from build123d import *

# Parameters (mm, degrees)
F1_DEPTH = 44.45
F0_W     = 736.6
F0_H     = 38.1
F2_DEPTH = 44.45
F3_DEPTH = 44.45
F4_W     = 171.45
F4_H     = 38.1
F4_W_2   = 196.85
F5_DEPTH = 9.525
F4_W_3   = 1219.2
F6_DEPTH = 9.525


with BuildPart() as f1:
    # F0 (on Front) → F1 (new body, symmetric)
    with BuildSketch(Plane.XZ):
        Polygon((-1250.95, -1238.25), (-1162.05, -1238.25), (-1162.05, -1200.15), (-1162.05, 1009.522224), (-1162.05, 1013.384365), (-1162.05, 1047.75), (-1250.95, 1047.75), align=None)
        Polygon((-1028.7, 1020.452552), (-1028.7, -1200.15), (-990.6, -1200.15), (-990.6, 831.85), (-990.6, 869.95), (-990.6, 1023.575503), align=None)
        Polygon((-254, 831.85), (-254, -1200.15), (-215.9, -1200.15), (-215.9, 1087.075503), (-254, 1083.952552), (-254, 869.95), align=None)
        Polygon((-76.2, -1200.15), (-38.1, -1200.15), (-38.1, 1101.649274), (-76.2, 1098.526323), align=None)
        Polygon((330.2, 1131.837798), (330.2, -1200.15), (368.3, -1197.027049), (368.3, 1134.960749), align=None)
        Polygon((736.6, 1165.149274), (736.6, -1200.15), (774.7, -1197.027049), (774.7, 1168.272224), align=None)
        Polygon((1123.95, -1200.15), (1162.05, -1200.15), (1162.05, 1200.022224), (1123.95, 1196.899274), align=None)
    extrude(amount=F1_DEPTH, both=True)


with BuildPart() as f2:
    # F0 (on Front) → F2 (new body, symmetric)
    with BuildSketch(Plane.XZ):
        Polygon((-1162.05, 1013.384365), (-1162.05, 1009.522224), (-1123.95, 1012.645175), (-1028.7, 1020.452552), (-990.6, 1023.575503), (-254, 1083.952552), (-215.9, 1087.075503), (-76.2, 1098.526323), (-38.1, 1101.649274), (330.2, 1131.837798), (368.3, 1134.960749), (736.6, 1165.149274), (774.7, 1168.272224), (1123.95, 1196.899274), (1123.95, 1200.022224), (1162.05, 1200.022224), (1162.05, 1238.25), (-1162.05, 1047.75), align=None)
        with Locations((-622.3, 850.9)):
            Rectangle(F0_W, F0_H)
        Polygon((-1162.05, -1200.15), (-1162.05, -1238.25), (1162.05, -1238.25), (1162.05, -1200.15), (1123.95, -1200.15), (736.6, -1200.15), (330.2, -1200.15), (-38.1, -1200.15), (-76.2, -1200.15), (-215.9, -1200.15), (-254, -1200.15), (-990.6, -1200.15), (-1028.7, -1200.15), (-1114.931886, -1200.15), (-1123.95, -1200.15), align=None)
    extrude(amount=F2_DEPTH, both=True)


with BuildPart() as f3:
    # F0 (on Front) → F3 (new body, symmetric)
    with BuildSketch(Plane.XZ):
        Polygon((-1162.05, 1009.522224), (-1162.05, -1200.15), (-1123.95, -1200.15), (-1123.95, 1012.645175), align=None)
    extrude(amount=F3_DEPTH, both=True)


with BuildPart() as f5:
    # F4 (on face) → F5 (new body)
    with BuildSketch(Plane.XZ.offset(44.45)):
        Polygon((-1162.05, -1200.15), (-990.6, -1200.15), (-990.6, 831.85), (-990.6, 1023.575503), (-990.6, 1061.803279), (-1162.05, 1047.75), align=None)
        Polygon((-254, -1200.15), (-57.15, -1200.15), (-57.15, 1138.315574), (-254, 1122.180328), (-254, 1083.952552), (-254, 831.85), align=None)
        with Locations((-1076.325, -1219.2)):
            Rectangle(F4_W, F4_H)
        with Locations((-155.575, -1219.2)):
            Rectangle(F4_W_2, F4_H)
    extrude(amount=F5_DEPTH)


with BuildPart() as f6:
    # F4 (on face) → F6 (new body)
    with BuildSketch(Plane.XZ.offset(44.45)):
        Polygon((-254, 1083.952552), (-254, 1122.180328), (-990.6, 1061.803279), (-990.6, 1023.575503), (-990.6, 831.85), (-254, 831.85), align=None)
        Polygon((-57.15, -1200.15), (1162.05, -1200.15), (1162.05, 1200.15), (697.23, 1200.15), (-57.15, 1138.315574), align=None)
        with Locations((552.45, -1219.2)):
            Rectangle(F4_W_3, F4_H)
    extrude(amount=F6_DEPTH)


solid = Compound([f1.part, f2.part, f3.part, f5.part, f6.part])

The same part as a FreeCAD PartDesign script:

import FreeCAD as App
import Part
import Sketcher
Q = App.Units.Quantity


def add_polygon(sketch, points):
    """Adds a closed chain of lines whose ends are joined by coincident constraints."""
    first, n = sketch.GeometryCount, len(points)
    for a, b in zip(points, points[1:] + points[:1]):
        sketch.addGeometry(Part.LineSegment(App.Vector(*a, 0), App.Vector(*b, 0)), False)
    for i in range(n):
        sketch.addConstraint(Sketcher.Constraint("Coincident", first + i, 2, first + (i + 1) % n, 1))

doc = App.newDocument("Part")
params = doc.addObject("Spreadsheet::Sheet", "Params")
for row, (alias, value) in enumerate([
    ("sketch1_height", "90 in"),
    ("sketch1_width", "3.5 in"),
    ("sketch1_width2", "1.5 in"),
    ("pad1_length", "3.5 in"),
    ("sketch2_width", "29 in"),
    ("sketch2_width2", "1.5 in"),
    ("sketch2_width3", "91.5 in"),
    ("pad2_length", "3.5 in"),
    ("sketch3_width", "1.5 in"),
    ("pad3_length", "3.5 in"),
    ("sketch4_height", "90 in"),
    ("sketch4_width", "6.75 in"),
    ("sketch4_width2", "7.75 in"),
    ("pad4_length", "0.375 in"),
    ("sketch5_width", "29 in"),
    ("sketch5_width2", "48 in"),
    ("sketch5_height", "96 in"),
    ("sketch5_width3", "18.3 in"),
    ("pad5_length", "0.375 in"),
], start=1):
    params.set(f"A{row}", alias)
    params.set(f"B{row}", "=" + value)
    params.setAlias(f"B{row}", alias)

body = doc.addObject("PartDesign::Body", "Body")
body.AllowCompound = True

sketch1 = doc.addObject("Sketcher::SketchObject", "Sketch")
body.addObject(sketch1)
sketch1.AttachmentSupport = (doc.XZ_Plane, [""])
sketch1.MapMode = "FlatFace"
add_polygon(sketch1, [(-1251, -1238), (-1162, -1238), (-1162, 1048), (-1251, 1048)])
add_polygon(sketch1, [(-1029, 1020), (-1029, -1200), (-991, -1200), (-991, 1024)])
add_polygon(sketch1, [(-254, -1200), (-216, -1200), (-216, 1087), (-254, 1084)])
add_polygon(sketch1, [(-76, -1200), (-38, -1200), (-38, 1102), (-76, 1099)])
add_polygon(sketch1, [(330, 1132), (330, -1200), (368, -1197), (368, 1135)])
add_polygon(sketch1, [(737, 1165), (737, -1200), (775, -1197), (775, 1168)])
add_polygon(sketch1, [(1124, -1200), (1162, -1200), (1162, 1200), (1124, 1197)])
sketch1.addConstraint([
    Sketcher.Constraint("Horizontal", 0),
    Sketcher.Constraint("Vertical", 1),
    Sketcher.Constraint("Horizontal", 2),
    Sketcher.Constraint("Vertical", 3),
    Sketcher.Constraint("Vertical", 4),
    Sketcher.Constraint("Horizontal", 5),
    Sketcher.Constraint("Vertical", 6),
    Sketcher.Constraint("Horizontal", 8),
    Sketcher.Constraint("Vertical", 9),
    Sketcher.Constraint("Vertical", 11),
    Sketcher.Constraint("Horizontal", 12),
    Sketcher.Constraint("Vertical", 13),
    Sketcher.Constraint("Vertical", 15),
    Sketcher.Constraint("Vertical", 16),
    Sketcher.Constraint("Vertical", 18),
    Sketcher.Constraint("Vertical", 20),
    Sketcher.Constraint("Vertical", 22),
    Sketcher.Constraint("Horizontal", 24),
    Sketcher.Constraint("Vertical", 25),
    Sketcher.Constraint("Vertical", 27),
    Sketcher.Constraint("Parallel", 7, 10),
    Sketcher.Constraint("Parallel", 10, 14),
    Sketcher.Constraint("Parallel", 14, 17),
    Sketcher.Constraint("Parallel", 17, 19),
    Sketcher.Constraint("Parallel", 19, 21),
    Sketcher.Constraint("Parallel", 21, 23),
    Sketcher.Constraint("Parallel", 23, 26),
    Sketcher.Constraint("Horizontal", 5, 2, 8, 2),
    Sketcher.Constraint("Horizontal", 11, 2, 12, 2),
    Sketcher.Constraint("Horizontal", 15, 2, 16, 2),
    Sketcher.Constraint("Horizontal", 16, 2, 20, 2),
    Sketcher.Constraint("Horizontal", 17, 2, 21, 2),
    Sketcher.Constraint("Horizontal", 20, 2, 24, 2),
    Sketcher.Constraint("Equal", 5, 8),
    Sketcher.Constraint("Equal", 8, 12),
    Sketcher.Constraint("Equal", 12, 24),
    Sketcher.Constraint("Equal", 14, 17),
    Sketcher.Constraint("DistanceY", 1, 1, 1, 2, Q("90 in")),
    Sketcher.Constraint("DistanceX", 0, 1, 0, 2, Q("3.5 in")),
    Sketcher.Constraint("DistanceX", 5, 1, 5, 2, Q("1.5 in")),
    Sketcher.Constraint("DistanceX", 5, 2, -1, 1, Q("39 in")),
    Sketcher.Constraint("DistanceX", 10, 2, -1, 1, Q("10 in")),
    Sketcher.Constraint("DistanceX", 14, 2, -1, 1, Q("3 in")),
    Sketcher.Constraint("DistanceX", -1, 1, 16, 2, Q("13 in")),
    Sketcher.Constraint("DistanceX", -1, 1, 20, 2, Q("29 in")),
    Sketcher.Constraint("DistanceY", 0, 2, 4, 2, Q("1.5 in")),
    Sketcher.Constraint("DistanceY", 6, 2, 9, 2, Q("2.5 in")),
    Sketcher.Constraint("DistanceY", 13, 2, 23, 2, Q("2.5 in")),
    Sketcher.Constraint("DistanceX", 0, 2, -1, 1, Q("45.75 in")),
    Sketcher.Constraint("DistanceY", 0, 2, -1, 1, Q("48.75 in")),
    Sketcher.Constraint("DistanceX", -1, 1, 24, 2, Q("45.75 in")),
    Sketcher.Constraint("DistanceY", 22, 2, 25, 2, Q("1.25 in")),
    Sketcher.Constraint("DistanceY", 16, 2, 16, 1, Q("2331.987798 mm")),
    Sketcher.Constraint("DistanceY", 14, 2, 22, 2, Q("69.745901 mm")),
    Sketcher.Constraint("DistanceY", 4, 2, 4, 1, Q("2220.602552 mm")),
    Sketcher.Constraint("DistanceY", 13, 1, 13, 2, Q("2301.799274 mm")),
])
sketch1.setExpression("Constraints[65]", "Params.sketch1_height")
sketch1.setExpression("Constraints[66]", "Params.sketch1_width")
sketch1.setExpression("Constraints[67]", "Params.sketch1_width2")
pad1 = doc.addObject("PartDesign::Pad", "Pad")
body.addObject(pad1)
pad1.Profile = sketch1
pad1.setExpression("Length", "Params.pad1_length")
pad1.Midplane = True
body2 = doc.addObject("PartDesign::Body", "Body001")
body2.AllowCompound = True

sketch2 = doc.addObject("Sketcher::SketchObject", "Sketch001")
body2.addObject(sketch2)
sketch2.AttachmentSupport = (doc.getObject("XZ_Plane001"), [""])
sketch2.MapMode = "FlatFace"
add_polygon(sketch2, [(-1162, 1009.5), (-1124, 1012.6), (-1028.7, 1020.5), (-990.6, 1023.6), (-254, 1084), (-215.9, 1087.1), (-76.2, 1098.5), (-38.1, 1101.6), (330.2, 1131.8), (368.3, 1135), (736.6, 1165.1), (774.7, 1168.3), (1124, 1196.9), (1124, 1200), (1162, 1200), (1162, 1238.2), (-1162, 1047.8)])
add_polygon(sketch2, [(-990.6, 870), (-990.6, 831.9), (-254, 831.9), (-254, 870)])
add_polygon(sketch2, [(-1162, -1200.2), (-1162, -1238.2), (1162, -1238.2), (1162, -1200.2)])
sketch2.addConstraint([
    Sketcher.Constraint("Vertical", 12),
    Sketcher.Constraint("Horizontal", 13),
    Sketcher.Constraint("Vertical", 14),
    Sketcher.Constraint("Vertical", 16),
    Sketcher.Constraint("Vertical", 17),
    Sketcher.Constraint("Horizontal", 18),
    Sketcher.Constraint("Vertical", 19),
    Sketcher.Constraint("Horizontal", 20),
    Sketcher.Constraint("Vertical", 21),
    Sketcher.Constraint("Horizontal", 22),
    Sketcher.Constraint("Vertical", 23),
    Sketcher.Constraint("Horizontal", 24),
    Sketcher.Constraint("Symmetric", 14, 2, 21, 2, -1, 1),
    Sketcher.Constraint("Parallel", 0, 1),
    Sketcher.Constraint("Parallel", 1, 2),
    Sketcher.Constraint("Parallel", 2, 3),
    Sketcher.Constraint("Parallel", 3, 4),
    Sketcher.Constraint("Parallel", 4, 5),
    Sketcher.Constraint("Parallel", 5, 6),
    Sketcher.Constraint("Parallel", 6, 7),
    Sketcher.Constraint("Parallel", 7, 8),
    Sketcher.Constraint("Parallel", 8, 9),
    Sketcher.Constraint("Parallel", 9, 10),
    Sketcher.Constraint("Parallel", 10, 11),
    Sketcher.Constraint("Parallel", 11, 15),
    Sketcher.Constraint("Vertical", 2, 2, 17, 2),
    Sketcher.Constraint("Vertical", 3, 2, 18, 2),
    Sketcher.Constraint("Vertical", 16, 2, 21, 2),
    Sketcher.Constraint("Vertical", 14, 2, 22, 2),
    Sketcher.Constraint("Equal", 14, 16),
    Sketcher.Constraint("Equal", 13, 17),
    Sketcher.Constraint("Equal", 19, 21),
    Sketcher.Constraint("Equal", 0, 2),
    Sketcher.Constraint("Equal", 2, 4),
    Sketcher.Constraint("Equal", 4, 6),
    Sketcher.Constraint("Equal", 6, 8),
    Sketcher.Constraint("Equal", 7, 9),
    Sketcher.Constraint("Equal", 8, 10),
    Sketcher.Constraint("DistanceX", 18, 1, 18, 2, Q("29 in")),
    Sketcher.Constraint("DistanceX", 13, 1, 13, 2, Q("1.5 in")),
    Sketcher.Constraint("DistanceX", 22, 1, 22, 2, Q("91.5 in")),
    Sketcher.Constraint("DistanceX", 2, 2, -1, 1, Q("39 in")),
    Sketcher.Constraint("DistanceX", 5, 2, -1, 1, Q("3 in")),
    Sketcher.Constraint("DistanceX", -1, 1, 7, 2, Q("13 in")),
    Sketcher.Constraint("DistanceX", 1, 2, 4, 2, Q("32 in")),
    Sketcher.Constraint("DistanceY", 21, 2, 20, 2, Q("83 in")),
    Sketcher.Constraint("DistanceY", 1, 2, 3, 2, Q("2.5 in")),
    Sketcher.Constraint("DistanceY", 17, 2, 15, 2, Q("8.5 in")),
    Sketcher.Constraint("DistanceY", -1, 1, 7, 2, Q("1131.837798 mm")),
])
sketch2.setExpression("Constraints[63]", "Params.sketch2_width")
sketch2.setExpression("Constraints[64]", "Params.sketch2_width2")
sketch2.setExpression("Constraints[65]", "Params.sketch2_width3")
pad2 = doc.addObject("PartDesign::Pad", "Pad001")
body2.addObject(pad2)
pad2.Profile = sketch2
pad2.setExpression("Length", "Params.pad2_length")
pad2.Midplane = True
body3 = doc.addObject("PartDesign::Body", "Body002")

sketch3 = doc.addObject("Sketcher::SketchObject", "Sketch002")
body3.addObject(sketch3)
sketch3.AttachmentSupport = (doc.getObject("XZ_Plane002"), [""])
sketch3.MapMode = "FlatFace"
add_polygon(sketch3, [(-1162, 1010), (-1162, -1200), (-1124, -1200), (-1124, 1013)])
sketch3.addConstraint([
    Sketcher.Constraint("Vertical", 0),
    Sketcher.Constraint("Horizontal", 1),
    Sketcher.Constraint("Vertical", 2),
    Sketcher.Constraint("DistanceX", 1, 1, 1, 2, Q("1.5 in")),
    Sketcher.Constraint("DistanceX", 0, 2, -1, 1, Q("45.75 in")),
    Sketcher.Constraint("DistanceY", 0, 2, -1, 1, Q("47.25 in")),
    Sketcher.Constraint("DistanceY", 0, 2, 0, 1, Q("2209.672224 mm")),
    Sketcher.Constraint("DistanceY", 2, 1, 2, 2, Q("2212.795175 mm")),
])
sketch3.setExpression("Constraints[7]", "Params.sketch3_width")
pad3 = doc.addObject("PartDesign::Pad", "Pad002")
body3.addObject(pad3)
pad3.Profile = sketch3
pad3.setExpression("Length", "Params.pad3_length")
pad3.Midplane = True
body4 = doc.addObject("PartDesign::Body", "Body003")
body4.AllowCompound = True

sketch4 = doc.addObject("Sketcher::SketchObject", "Sketch003")
body4.addObject(sketch4)
sketch4.AttachmentSupport = (doc.getObject("XZ_Plane003"), [""])
sketch4.MapMode = "FlatFace"
sketch4.AttachmentOffset = App.Placement(App.Vector(0, 0, 1.75 * 25.4), App.Rotation())
add_polygon(sketch4, [(-991, 1062), (-1162, 1048), (-1162, -1238), (-991, -1238)])
add_polygon(sketch4, [(-57, 1138), (-254, 1122), (-254, -1238), (-57, -1238)])
sketch4.addConstraint([
    Sketcher.Constraint("Vertical", 1),
    Sketcher.Constraint("Horizontal", 2),
    Sketcher.Constraint("Vertical", 3),
    Sketcher.Constraint("Vertical", 5),
    Sketcher.Constraint("Horizontal", 6),
    Sketcher.Constraint("Vertical", 7),
    Sketcher.Constraint("Parallel", 0, 4),
    Sketcher.Constraint("Horizontal", 2, 2, 5, 2),
    Sketcher.Constraint("DistanceY", 1, 2, 1, 1, Q("90 in")),
    Sketcher.Constraint("DistanceX", 2, 2, -1, 1, Q("39 in")),
    Sketcher.Constraint("DistanceX", 4, 2, -1, 1, Q("10 in")),
    Sketcher.Constraint("DistanceX", 2, 1, 2, 2, Q("6.75 in")),
    Sketcher.Constraint("DistanceX", 6, 1, 6, 2, Q("7.75 in")),
    Sketcher.Constraint("DistanceY", -1, 1, 0, 2, Q("41.25 in")),
    Sketcher.Constraint("DistanceY", 3, 1, 3, 2, Q("2300.053279 mm")),
    Sketcher.Constraint("DistanceY", 5, 2, 5, 1, Q("2360.430328 mm")),
])
sketch4.setExpression("Constraints[16]", "Params.sketch4_height")
sketch4.setExpression("Constraints[19]", "Params.sketch4_width")
sketch4.setExpression("Constraints[20]", "Params.sketch4_width2")
pad4 = doc.addObject("PartDesign::Pad", "Pad003")
body4.addObject(pad4)
pad4.Profile = sketch4
pad4.setExpression("Length", "Params.pad4_length")
body5 = doc.addObject("PartDesign::Body", "Body004")
body5.AllowCompound = True

sketch5 = doc.addObject("Sketcher::SketchObject", "Sketch004")
body5.addObject(sketch5)
sketch5.AttachmentSupport = (doc.getObject("XZ_Plane004"), [""])
sketch5.MapMode = "FlatFace"
sketch5.AttachmentOffset = App.Placement(App.Vector(0, 0, 1.75 * 25.4), App.Rotation())
add_polygon(sketch5, [(-254, 1122), (-991, 1062), (-991, 832), (-254, 832)])
add_polygon(sketch5, [(1162, 1200), (697, 1200), (-57, 1138), (-57, -1238), (1162, -1238)])
sketch5.addConstraint([
    Sketcher.Constraint("Vertical", 1),
    Sketcher.Constraint("Horizontal", 2),
    Sketcher.Constraint("Vertical", 3),
    Sketcher.Constraint("Horizontal", 4),
    Sketcher.Constraint("Vertical", 6),
    Sketcher.Constraint("Horizontal", 7),
    Sketcher.Constraint("Vertical", 8),
    Sketcher.Constraint("Parallel", 0, 5),
    Sketcher.Constraint("DistanceX", 2, 1, 2, 2, Q("29 in")),
    Sketcher.Constraint("DistanceX", 7, 1, 7, 2, Q("48 in")),
    Sketcher.Constraint("DistanceY", 8, 1, 8, 2, Q("96 in")),
    Sketcher.Constraint("DistanceX", 4, 2, 4, 1, Q("18.3 in")),
    Sketcher.Constraint("DistanceX", 0, 2, -1, 1, Q("39 in")),
    Sketcher.Constraint("DistanceY", 2, 2, 4, 2, Q("14.5 in")),
    Sketcher.Constraint("DistanceY", -1, 1, 1, 2, Q("32.75 in")),
    Sketcher.Constraint("DistanceX", -1, 1, 4, 2, Q("27.45 in")),
    Sketcher.Constraint("DistanceY", 1, 2, 1, 1, Q("229.953279 mm")),
    Sketcher.Constraint("DistanceY", 3, 1, 3, 2, Q("290.330328 mm")),
])
sketch5.setExpression("Constraints[17]", "Params.sketch5_width")
sketch5.setExpression("Constraints[18]", "Params.sketch5_width2")
sketch5.setExpression("Constraints[19]", "Params.sketch5_height")
sketch5.setExpression("Constraints[20]", "Params.sketch5_width3")
pad5 = doc.addObject("PartDesign::Pad", "Pad004")
body5.addObject(pad5)
pad5.Profile = sketch5
pad5.setExpression("Length", "Params.pad5_length")

doc.recompute()
